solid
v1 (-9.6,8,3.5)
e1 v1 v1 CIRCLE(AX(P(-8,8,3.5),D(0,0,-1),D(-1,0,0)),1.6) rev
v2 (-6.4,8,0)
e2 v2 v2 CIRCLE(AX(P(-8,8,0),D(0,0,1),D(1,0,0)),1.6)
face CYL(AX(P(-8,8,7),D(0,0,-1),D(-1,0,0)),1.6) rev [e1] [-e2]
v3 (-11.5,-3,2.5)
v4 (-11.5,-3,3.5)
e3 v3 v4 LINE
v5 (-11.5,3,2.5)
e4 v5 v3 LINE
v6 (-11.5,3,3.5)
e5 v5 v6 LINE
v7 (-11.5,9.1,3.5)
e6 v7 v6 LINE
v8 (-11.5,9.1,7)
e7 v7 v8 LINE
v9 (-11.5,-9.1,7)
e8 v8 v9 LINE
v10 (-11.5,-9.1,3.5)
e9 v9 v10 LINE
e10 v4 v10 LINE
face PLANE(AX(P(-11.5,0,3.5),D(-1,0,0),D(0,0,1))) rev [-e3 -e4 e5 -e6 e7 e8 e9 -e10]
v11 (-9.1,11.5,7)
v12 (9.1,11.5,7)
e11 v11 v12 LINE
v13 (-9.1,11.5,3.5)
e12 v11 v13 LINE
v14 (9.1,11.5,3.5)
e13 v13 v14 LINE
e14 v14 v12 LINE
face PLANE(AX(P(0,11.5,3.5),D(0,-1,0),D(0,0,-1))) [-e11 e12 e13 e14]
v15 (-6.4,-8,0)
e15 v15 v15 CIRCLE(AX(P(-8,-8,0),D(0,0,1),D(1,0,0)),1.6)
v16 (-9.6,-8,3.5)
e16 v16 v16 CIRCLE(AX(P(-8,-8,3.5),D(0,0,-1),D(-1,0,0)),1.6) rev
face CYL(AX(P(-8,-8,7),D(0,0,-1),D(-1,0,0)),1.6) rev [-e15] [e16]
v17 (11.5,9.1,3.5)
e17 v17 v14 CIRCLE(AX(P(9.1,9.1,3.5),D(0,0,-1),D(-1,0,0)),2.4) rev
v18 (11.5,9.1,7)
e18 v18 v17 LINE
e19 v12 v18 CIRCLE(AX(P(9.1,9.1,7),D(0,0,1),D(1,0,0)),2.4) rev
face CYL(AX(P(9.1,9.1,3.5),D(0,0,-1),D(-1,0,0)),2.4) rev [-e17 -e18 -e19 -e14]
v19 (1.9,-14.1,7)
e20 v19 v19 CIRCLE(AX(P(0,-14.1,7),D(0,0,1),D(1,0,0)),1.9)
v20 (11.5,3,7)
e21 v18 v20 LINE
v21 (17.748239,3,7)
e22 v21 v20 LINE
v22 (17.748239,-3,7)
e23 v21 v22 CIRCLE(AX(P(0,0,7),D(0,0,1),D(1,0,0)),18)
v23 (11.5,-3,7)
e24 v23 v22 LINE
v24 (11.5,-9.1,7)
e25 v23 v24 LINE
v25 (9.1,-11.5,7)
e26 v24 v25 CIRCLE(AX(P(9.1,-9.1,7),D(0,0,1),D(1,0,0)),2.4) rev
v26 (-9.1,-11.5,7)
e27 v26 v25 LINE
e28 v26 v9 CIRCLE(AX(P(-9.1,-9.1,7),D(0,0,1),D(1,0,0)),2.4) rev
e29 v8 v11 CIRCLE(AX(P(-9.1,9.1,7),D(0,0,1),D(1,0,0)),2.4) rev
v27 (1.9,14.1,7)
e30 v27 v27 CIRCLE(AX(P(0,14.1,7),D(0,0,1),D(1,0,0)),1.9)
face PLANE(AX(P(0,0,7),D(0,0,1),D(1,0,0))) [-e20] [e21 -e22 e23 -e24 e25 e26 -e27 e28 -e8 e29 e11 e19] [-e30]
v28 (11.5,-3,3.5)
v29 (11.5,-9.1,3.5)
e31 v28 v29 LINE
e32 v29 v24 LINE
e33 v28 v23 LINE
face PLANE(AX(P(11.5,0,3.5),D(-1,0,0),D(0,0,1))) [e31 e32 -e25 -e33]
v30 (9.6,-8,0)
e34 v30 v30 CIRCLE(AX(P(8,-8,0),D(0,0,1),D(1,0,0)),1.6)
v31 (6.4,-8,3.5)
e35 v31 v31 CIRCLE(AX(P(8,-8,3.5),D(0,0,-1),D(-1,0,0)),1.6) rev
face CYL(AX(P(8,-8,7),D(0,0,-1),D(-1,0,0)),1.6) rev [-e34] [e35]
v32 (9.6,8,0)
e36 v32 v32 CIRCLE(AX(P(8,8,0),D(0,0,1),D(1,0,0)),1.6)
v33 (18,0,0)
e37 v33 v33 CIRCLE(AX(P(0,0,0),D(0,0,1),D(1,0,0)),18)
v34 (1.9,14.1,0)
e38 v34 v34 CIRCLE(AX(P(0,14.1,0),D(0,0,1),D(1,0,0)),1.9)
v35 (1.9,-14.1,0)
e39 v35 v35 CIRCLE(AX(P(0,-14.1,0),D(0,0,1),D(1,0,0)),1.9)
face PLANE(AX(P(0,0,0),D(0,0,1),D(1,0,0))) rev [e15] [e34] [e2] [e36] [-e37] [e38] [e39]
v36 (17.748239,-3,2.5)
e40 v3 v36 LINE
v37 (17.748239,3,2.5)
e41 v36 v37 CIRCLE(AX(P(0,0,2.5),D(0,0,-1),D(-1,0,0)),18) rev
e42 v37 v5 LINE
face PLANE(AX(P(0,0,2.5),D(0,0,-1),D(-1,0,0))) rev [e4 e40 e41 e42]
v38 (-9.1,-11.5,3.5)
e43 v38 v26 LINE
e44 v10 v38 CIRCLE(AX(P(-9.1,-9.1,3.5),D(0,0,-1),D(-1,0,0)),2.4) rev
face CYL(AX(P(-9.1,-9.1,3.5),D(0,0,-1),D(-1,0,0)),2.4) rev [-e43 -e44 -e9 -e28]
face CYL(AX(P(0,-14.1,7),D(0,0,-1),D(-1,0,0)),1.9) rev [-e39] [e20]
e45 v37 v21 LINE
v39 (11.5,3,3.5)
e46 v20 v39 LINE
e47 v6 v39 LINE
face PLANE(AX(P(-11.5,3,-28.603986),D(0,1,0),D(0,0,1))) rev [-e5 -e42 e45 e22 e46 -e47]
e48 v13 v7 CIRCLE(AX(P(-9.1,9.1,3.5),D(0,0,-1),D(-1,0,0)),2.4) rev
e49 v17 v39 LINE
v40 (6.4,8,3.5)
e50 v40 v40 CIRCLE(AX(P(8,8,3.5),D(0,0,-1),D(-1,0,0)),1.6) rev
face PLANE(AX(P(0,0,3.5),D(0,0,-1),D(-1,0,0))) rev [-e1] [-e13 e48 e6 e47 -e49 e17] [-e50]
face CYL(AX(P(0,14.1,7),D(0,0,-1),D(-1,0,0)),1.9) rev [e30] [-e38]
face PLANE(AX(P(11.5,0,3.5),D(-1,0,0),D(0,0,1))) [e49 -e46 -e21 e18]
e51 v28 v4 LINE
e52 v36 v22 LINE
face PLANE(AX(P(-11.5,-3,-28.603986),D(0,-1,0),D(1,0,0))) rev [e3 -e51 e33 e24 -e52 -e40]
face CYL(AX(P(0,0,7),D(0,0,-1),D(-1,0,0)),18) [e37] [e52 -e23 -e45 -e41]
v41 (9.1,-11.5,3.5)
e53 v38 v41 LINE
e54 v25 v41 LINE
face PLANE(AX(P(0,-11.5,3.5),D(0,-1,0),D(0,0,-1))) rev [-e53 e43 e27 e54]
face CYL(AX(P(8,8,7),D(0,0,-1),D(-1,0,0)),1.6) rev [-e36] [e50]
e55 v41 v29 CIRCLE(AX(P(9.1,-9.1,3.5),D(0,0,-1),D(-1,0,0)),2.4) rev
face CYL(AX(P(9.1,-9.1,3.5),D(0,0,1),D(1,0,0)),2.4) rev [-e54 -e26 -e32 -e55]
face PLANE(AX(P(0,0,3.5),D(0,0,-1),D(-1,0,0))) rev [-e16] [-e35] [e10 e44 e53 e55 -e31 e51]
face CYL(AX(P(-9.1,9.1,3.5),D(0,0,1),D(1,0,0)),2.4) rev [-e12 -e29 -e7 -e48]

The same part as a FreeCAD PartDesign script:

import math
import FreeCAD as App
import Part
import Sketcher

V = App.Vector


def edges_at(feature, points):
    """Names of the edges that pass closest to the given points."""
    edges = feature.Shape.Edges
    near = lambda p: min(range(len(edges)), key=lambda i: edges[i].distToShape(Part.Vertex(*p))[0])
    return sorted({f"Edge{near(p) + 1}" for p in points})

doc = App.newDocument("Part")
body = doc.addObject("PartDesign::Body", "Body")

sketch1 = body.newObject("Sketcher::SketchObject", "Sketch")
sketch1.AttachmentSupport = (doc.getObject("XY_Plane"), [""])
sketch1.MapMode = "FlatFace"
sketch1.addGeometry([
    Part.Circle(V(0, 0, 0), V(0, 0, 1), 18),
    Part.Circle(V(0, -14.1, 0), V(0, 0, 1), 1.9),
    Part.Circle(V(0, 14.1, 0), V(0, 0, 1), 1.9),
], False)
sketch1.addConstraint([
    Sketcher.Constraint("Coincident", 0, 3, -1, 1),
    Sketcher.Constraint("Equal", 1, 2),
    Sketcher.Constraint("Symmetric", 1, 3, 2, 3, -1, 1),
    Sketcher.Constraint("PointOnObject", 1, 3, -2),
    Sketcher.Constraint("Diameter", 0, 36.0),
    Sketcher.Constraint("Diameter", 1, 3.8),
    Sketcher.Constraint("DistanceY", 1, 3, -1, 1, 14.1),
])
pad1 = body.newObject("PartDesign::Pad", "Pad")
pad1.Profile = sketch1
pad1.Length = 7

sketch2 = body.newObject("Sketcher::SketchObject", "Sketch001")
sketch2.AttachmentSupport = (doc.getObject("XY_Plane"), [""])
sketch2.MapMode = "FlatFace"
sketch2.AttachmentOffset = App.Placement(V(0, 0, 7), App.Rotation())
sketch2.addGeometry([
    Part.LineSegment(V(-12, -12, 0), V(12, -12, 0)),
    Part.LineSegment(V(12, -12, 0), V(12, 12, 0)),
    Part.LineSegment(V(12, 12, 0), V(-12, 12, 0)),
    Part.LineSegment(V(-12, 12, 0), V(-12, -12, 0)),
], False)
sketch2.addConstraint([
    Sketcher.Constraint("Coincident", 0, 2, 1, 1),
    Sketcher.Constraint("Coincident", 1, 2, 2, 1),
    Sketcher.Constraint("Coincident", 2, 2, 3, 1),
    Sketcher.Constraint("Coincident", 3, 2, 0, 1),
    Sketcher.Constraint("Horizontal", 0),
    Sketcher.Constraint("Vertical", 1),
    Sketcher.Constraint("Horizontal", 2),
    Sketcher.Constraint("Vertical", 3),
    Sketcher.Constraint("Symmetric", 0, 2, 2, 2, -1, 1),
    Sketcher.Constraint("Equal", 2, 1),
    Sketcher.Constraint("DistanceX", 0, 1, 0, 2, 23.0),
])
pocket1 = body.newObject("PartDesign::Pocket", "Pocket")
pocket1.Profile = sketch2
pocket1.Length = 3.5

sketch3 = body.newObject("Sketcher::SketchObject", "Sketch002")
sketch3.AttachmentSupport = (doc.getObject("XY_Plane"), [""])
sketch3.MapMode = "FlatFace"
sketch3.addGeometry([
    Part.Circle(V(8, -8, 0), V(0, 0, 1), 1.6),
    Part.Circle(V(8, 8, 0), V(0, 0, 1), 1.6),
    Part.Circle(V(-8, 8, 0), V(0, 0, 1), 1.6),
    Part.Circle(V(-8, -8, 0), V(0, 0, 1), 1.6),
], False)
sketch3.addConstraint([
    Sketcher.Constraint("Equal", 0, 1),
    Sketcher.Constraint("Equal", 1, 2),
    Sketcher.Constraint("Equal", 2, 3),
    Sketcher.Constraint("Symmetric", 0, 3, 2, 3, -1, 1),
    Sketcher.Constraint("Symmetric", 1, 3, 3, 3, -1, 1),
    Sketcher.Constraint("Symmetric", 1, 3, 2, 3, -2),
    Sketcher.Constraint("Diameter", 0, 3.2),
    Sketcher.Constraint("DistanceX", -1, 1, 0, 3, 8.0),
    Sketcher.Constraint("DistanceY", 0, 3, -1, 1, 8.0),
])
pocket2 = body.newObject("PartDesign::Pocket", "Pocket001")
pocket2.Profile = sketch3
pocket2.Type = "ThroughAll"
pocket2.Reversed = True

sketch4 = body.newObject("Sketcher::SketchObject", "Sketch003")
sketch4.AttachmentSupport = (doc.getObject("XY_Plane"), [""])
sketch4.MapMode = "FlatFace"
sketch4.AttachmentOffset = App.Placement(V(0, 0, 2.5), App.Rotation())
sketch4.addGeometry([
    Part.LineSegment(V(18, 3, 0), V(-12, 3, 0)),
    Part.LineSegment(V(-12, 3, 0), V(-12, -3, 0)),
    Part.LineSegment(V(-12, -3, 0), V(18, -3, 0)),
    Part.ArcOfCircle(Part.Circle(V(0, 0, 0), V(0, 0, 1), 18), math.radians(-9.59), math.radians(9.59)),
], False)
sketch4.addConstraint([
    Sketcher.Constraint("Coincident", 0, 2, 1, 1),
    Sketcher.Constraint("Coincident", 1, 2, 2, 1),
    Sketcher.Constraint("Coincident", 2, 2, 3, 1),
    Sketcher.Constraint("Coincident", 3, 2, 0, 1),
    Sketcher.Constraint("Horizontal", 0),
    Sketcher.Constraint("Vertical", 1),
    Sketcher.Constraint("Horizontal", 2),
    Sketcher.Constraint("Coincident", 3, 3, -1, 1),
    Sketcher.Constraint("Vertical", 2, 2, 3, 2),
    Sketcher.Constraint("Radius", 3, 18.0),
    Sketcher.Constraint("DistanceY", 1, 2, 1, 1, 6.0),
    Sketcher.Constraint("DistanceX", 0, 2, -1, 1, 11.5),
])
pocket3 = body.newObject("PartDesign::Pocket", "Pocket002")
pocket3.Profile = sketch4
pocket3.Length = 4.5
pocket3.Reversed = True
doc.recompute()

fillet = body.newObject("PartDesign::Fillet", "Fillet")
fillet.Base = (pocket3, edges_at(pocket3, [
    (11.5, -11.5, 5.25),
    (-11.5, -11.5, 5.25),
    (-11.5, 11.5, 5.25),
    (11.5, 11.5, 5.25),
]))
fillet.Radius = 2.4

doc.recompute()
